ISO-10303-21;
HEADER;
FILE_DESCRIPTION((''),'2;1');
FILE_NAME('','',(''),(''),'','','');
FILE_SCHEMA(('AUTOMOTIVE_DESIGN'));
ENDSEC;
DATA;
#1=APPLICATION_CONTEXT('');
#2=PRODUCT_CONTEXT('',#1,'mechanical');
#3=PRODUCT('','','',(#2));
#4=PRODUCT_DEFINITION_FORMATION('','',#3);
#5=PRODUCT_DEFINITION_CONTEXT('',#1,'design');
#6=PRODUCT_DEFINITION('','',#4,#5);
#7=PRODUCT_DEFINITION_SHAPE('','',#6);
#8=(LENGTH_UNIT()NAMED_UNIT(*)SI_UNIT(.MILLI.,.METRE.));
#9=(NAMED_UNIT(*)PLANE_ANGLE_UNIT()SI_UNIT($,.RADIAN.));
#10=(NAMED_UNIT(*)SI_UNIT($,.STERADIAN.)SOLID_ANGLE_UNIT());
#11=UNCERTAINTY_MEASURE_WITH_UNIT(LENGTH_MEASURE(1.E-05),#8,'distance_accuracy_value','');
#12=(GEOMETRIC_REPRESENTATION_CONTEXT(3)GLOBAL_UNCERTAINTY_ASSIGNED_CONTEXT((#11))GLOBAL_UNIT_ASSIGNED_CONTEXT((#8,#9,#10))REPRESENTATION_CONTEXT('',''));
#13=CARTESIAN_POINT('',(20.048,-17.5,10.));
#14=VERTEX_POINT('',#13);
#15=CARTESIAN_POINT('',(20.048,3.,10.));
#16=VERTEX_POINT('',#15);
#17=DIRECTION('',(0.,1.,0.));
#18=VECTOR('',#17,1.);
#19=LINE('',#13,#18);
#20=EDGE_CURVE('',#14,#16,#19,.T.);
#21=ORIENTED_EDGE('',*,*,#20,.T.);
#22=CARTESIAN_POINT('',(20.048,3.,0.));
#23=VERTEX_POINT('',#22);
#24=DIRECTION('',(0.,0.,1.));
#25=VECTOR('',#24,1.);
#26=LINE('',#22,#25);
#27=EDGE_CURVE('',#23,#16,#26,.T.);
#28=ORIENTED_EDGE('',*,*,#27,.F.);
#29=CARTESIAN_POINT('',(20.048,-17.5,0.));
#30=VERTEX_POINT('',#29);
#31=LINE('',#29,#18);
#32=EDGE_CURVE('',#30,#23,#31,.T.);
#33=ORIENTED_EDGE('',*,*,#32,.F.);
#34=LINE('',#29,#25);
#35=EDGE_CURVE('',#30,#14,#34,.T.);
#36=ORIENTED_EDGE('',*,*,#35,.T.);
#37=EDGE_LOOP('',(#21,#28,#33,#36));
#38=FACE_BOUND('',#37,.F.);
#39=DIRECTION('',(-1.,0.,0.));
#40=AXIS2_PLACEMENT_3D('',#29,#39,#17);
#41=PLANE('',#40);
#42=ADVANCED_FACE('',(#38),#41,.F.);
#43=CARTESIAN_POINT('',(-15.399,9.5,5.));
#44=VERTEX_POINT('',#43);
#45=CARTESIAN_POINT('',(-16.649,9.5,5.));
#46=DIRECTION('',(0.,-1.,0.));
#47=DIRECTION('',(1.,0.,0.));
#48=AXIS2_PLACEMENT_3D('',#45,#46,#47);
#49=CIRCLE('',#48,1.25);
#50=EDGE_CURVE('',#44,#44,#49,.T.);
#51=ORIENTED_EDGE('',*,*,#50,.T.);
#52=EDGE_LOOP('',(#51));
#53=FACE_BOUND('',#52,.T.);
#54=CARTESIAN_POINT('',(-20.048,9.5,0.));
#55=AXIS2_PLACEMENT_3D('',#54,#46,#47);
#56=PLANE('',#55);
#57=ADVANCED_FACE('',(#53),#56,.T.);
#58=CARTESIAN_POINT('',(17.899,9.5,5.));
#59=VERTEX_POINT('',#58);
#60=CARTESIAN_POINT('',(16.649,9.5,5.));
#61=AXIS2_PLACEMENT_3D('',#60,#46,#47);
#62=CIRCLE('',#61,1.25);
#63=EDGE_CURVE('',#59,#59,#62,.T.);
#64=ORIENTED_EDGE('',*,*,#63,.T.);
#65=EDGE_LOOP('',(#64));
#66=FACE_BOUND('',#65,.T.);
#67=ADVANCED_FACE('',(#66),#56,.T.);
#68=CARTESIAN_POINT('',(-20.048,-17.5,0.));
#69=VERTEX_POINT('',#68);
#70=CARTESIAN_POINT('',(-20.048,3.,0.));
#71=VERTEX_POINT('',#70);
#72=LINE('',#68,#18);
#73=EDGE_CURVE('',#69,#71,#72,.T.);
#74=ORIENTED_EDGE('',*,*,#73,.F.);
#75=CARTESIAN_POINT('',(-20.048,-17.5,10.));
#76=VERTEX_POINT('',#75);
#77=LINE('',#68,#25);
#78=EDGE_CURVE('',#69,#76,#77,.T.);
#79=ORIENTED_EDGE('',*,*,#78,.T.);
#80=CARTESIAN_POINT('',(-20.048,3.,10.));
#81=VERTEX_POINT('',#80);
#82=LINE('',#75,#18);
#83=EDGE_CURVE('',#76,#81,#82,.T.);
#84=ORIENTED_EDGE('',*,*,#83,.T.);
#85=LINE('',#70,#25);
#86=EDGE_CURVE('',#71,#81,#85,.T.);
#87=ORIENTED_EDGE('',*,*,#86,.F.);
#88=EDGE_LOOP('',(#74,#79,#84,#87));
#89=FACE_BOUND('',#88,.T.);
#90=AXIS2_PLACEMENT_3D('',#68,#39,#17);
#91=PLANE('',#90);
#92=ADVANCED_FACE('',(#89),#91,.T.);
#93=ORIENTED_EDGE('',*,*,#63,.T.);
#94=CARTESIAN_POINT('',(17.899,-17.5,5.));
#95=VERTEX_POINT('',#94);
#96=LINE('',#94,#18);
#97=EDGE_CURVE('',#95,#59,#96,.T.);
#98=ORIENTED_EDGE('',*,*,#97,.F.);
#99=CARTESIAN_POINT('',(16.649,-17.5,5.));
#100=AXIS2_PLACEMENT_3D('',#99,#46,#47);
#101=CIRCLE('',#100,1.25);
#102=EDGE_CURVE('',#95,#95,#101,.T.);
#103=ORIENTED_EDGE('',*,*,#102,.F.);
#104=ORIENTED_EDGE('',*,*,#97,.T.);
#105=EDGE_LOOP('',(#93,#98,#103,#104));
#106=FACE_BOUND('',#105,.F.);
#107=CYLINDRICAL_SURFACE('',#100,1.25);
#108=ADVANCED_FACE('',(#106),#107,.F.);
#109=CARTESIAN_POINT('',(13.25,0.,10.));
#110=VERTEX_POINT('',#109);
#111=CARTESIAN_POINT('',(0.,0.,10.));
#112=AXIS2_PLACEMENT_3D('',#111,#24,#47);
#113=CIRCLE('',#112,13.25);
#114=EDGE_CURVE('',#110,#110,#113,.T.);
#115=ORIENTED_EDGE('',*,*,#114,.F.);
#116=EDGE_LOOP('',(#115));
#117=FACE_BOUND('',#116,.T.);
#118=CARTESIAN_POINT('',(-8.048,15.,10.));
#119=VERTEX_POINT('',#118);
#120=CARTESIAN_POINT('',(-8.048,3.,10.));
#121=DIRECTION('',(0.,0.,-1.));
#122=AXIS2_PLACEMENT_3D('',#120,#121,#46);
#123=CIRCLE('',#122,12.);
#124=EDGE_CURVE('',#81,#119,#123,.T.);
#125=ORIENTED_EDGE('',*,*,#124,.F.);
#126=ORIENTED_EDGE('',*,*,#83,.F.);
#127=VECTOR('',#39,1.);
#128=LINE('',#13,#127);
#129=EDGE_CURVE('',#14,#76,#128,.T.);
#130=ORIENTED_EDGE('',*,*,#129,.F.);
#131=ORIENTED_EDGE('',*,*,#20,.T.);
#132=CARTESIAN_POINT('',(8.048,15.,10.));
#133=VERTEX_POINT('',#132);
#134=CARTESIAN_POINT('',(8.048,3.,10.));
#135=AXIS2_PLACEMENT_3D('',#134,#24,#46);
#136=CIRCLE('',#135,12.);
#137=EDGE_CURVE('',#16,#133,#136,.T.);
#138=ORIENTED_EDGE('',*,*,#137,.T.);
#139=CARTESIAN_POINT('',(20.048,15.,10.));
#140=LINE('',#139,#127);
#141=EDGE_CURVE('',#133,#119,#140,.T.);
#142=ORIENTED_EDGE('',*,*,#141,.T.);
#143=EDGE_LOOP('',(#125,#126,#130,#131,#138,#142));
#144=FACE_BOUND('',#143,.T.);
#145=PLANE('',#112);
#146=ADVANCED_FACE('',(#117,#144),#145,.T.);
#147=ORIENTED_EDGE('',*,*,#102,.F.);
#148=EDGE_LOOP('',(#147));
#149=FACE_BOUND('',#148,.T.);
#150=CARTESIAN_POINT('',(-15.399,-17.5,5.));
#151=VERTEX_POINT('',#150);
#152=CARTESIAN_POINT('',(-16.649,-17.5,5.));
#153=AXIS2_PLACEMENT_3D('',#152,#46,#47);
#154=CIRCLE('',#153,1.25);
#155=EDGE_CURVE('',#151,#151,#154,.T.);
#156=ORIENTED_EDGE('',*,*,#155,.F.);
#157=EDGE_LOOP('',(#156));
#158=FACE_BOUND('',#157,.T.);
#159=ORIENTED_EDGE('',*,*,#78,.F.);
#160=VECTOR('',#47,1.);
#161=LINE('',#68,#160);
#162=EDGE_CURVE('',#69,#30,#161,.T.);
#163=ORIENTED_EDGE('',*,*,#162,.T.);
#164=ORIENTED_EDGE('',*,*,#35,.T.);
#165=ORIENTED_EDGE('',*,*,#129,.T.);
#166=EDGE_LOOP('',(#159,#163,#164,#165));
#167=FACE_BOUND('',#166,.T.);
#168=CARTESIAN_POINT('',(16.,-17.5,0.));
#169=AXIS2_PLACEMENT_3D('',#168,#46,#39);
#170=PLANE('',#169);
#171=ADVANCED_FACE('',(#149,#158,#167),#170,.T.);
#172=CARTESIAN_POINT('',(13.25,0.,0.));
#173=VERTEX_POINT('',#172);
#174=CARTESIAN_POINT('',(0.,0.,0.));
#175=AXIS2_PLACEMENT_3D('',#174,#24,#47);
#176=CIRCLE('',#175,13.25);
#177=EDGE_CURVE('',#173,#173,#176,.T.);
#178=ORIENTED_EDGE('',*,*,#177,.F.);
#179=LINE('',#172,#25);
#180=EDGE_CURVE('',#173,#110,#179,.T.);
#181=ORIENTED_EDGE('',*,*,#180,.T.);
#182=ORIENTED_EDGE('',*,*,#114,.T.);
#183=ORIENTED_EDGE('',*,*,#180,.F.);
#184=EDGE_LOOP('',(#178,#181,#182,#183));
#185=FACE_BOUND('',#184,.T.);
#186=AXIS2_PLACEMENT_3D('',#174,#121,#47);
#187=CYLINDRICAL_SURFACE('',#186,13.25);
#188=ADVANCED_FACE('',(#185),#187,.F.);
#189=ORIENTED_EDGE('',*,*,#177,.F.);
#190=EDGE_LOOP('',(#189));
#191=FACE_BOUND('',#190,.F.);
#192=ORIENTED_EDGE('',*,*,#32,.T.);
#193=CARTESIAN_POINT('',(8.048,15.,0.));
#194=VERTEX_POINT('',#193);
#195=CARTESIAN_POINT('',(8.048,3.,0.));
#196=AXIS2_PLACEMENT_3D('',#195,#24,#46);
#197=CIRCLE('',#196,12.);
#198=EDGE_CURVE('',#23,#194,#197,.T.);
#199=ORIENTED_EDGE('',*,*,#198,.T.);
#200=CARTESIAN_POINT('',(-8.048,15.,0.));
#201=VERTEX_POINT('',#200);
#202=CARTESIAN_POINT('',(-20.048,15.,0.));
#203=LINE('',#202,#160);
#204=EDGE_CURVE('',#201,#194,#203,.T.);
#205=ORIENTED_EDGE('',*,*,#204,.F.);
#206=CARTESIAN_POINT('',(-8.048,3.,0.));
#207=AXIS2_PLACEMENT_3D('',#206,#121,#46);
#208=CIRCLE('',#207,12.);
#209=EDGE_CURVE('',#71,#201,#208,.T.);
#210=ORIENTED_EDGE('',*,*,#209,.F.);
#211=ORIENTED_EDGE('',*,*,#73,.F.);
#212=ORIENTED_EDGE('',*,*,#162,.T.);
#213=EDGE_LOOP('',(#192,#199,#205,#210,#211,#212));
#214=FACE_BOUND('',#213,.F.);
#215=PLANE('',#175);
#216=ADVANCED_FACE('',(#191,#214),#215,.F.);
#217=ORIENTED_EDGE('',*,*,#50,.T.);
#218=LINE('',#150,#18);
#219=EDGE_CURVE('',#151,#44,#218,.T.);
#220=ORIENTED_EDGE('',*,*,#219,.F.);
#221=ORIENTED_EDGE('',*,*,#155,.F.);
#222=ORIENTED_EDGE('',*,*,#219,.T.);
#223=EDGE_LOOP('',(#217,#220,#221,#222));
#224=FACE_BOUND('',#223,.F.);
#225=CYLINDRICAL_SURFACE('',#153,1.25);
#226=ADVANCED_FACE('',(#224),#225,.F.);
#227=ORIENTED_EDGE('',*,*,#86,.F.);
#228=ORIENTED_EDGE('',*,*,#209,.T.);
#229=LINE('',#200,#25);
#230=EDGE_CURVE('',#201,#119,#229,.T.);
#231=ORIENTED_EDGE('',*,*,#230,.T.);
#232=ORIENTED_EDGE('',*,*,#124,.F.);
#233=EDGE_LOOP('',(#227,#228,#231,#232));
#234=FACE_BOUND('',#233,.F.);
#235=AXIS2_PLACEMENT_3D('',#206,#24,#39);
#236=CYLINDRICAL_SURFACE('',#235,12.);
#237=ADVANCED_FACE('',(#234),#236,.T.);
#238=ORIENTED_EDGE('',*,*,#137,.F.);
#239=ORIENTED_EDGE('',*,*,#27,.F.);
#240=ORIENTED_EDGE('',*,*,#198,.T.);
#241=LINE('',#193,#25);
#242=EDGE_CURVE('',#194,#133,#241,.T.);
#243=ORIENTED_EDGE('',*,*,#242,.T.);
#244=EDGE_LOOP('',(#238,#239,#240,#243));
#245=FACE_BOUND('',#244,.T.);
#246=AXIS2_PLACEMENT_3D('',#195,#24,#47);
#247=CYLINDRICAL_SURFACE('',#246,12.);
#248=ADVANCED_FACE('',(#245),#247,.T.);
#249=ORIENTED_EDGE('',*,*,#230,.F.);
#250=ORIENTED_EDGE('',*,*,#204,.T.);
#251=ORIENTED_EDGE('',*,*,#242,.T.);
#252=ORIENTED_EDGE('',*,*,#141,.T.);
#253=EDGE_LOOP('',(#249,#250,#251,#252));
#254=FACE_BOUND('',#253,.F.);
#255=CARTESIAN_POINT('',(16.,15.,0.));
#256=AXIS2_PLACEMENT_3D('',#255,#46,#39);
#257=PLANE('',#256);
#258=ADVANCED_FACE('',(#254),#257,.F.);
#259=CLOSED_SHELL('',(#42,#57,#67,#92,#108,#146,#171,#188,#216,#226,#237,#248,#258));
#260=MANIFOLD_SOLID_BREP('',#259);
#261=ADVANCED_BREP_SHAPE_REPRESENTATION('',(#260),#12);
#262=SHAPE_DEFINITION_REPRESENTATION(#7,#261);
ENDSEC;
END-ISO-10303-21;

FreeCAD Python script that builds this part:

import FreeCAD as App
import Part
import Sketcher
Q = App.Units.Quantity


def edges_at(feature, points):
    """Names of the edges that pass closest to the given points."""
    edges = feature.Shape.Edges
    near = lambda p: min(range(len(edges)), key=lambda i: edges[i].distToShape(Part.Vertex(*p))[0])
    return sorted({f"Edge{near(p) + 1}" for p in points})

doc = App.newDocument("Part")
body = doc.addObject("PartDesign::Body", "Body")

# Sketch on XY plane
sketch1 = body.newObject("Sketcher::SketchObject", "Sketch")
sketch1.AttachmentSupport = (doc.getObject("XY_Plane"), [""])
sketch1.MapMode = "FlatFace"
sketch1.addGeometry(Part.LineSegment(App.Vector(-16, -18, 0), App.Vector(16, -18, 0)), False)
sketch1.addGeometry(Part.LineSegment(App.Vector(16, -18, 0), App.Vector(16, 15, 0)), False)
sketch1.addGeometry(Part.LineSegment(App.Vector(16, 15, 0), App.Vector(-16, 15, 0)), False)
sketch1.addGeometry(Part.LineSegment(App.Vector(-16, 15, 0), App.Vector(-16, -18, 0)), False)
sketch1.addGeometry(Part.Circle(App.Vector(0, 0, 0), App.Vector(0, 0, 1), 13), False)
sketch1.addConstraint(Sketcher.Constraint("Coincident", 0, 2, 1, 1))
sketch1.addConstraint(Sketcher.Constraint("Coincident", 1, 2, 2, 1))
sketch1.addConstraint(Sketcher.Constraint("Coincident", 2, 2, 3, 1))
sketch1.addConstraint(Sketcher.Constraint("Coincident", 3, 2, 0, 1))
sketch1.addConstraint(Sketcher.Constraint("Horizontal", 0))
sketch1.addConstraint(Sketcher.Constraint("Vertical", 1))
sketch1.addConstraint(Sketcher.Constraint("Horizontal", 2))
sketch1.addConstraint(Sketcher.Constraint("Vertical", 3))
sketch1.addConstraint(Sketcher.Constraint("Coincident", 4, 3, -1, 1))
sketch1.addConstraint(Sketcher.Constraint("Diameter", 4, Q("26.5 mm")))
sketch1.addConstraint(Sketcher.Constraint("DistanceY", 1, 1, 1, 2, Q("32.5 mm")))
sketch1.addConstraint(Sketcher.Constraint("DistanceY", 0, 2, -1, 1, Q("17.5 mm")))
sketch1.addConstraint(Sketcher.Constraint("DistanceX", 0, 1, 0, 2, Q("32 mm")))
sketch1.addConstraint(Sketcher.Constraint("DistanceX", -1, 1, 0, 2, Q("16 mm")))
pad1 = body.newObject("PartDesign::Pad", "Pad")
pad1.Profile = sketch1
pad1.Length = 10

# Sketch on XY plane
sketch2 = body.newObject("Sketcher::SketchObject", "Sketch001")
sketch2.AttachmentSupport = (doc.getObject("XY_Plane"), [""])
sketch2.MapMode = "FlatFace"
sketch2.addGeometry(Part.LineSegment(App.Vector(-20, 15, 0), App.Vector(-16, 15, 0)), False)
sketch2.addGeometry(Part.LineSegment(App.Vector(-16, 15, 0), App.Vector(-16, -17.5, 0)), False)
sketch2.addGeometry(Part.LineSegment(App.Vector(-16, -17.5, 0), App.Vector(-20, -17.5, 0)), False)
sketch2.addGeometry(Part.LineSegment(App.Vector(-20, -17.5, 0), App.Vector(-20, 15, 0)), False)
sketch2.addGeometry(Part.LineSegment(App.Vector(16, -17.5, 0), App.Vector(16, 15, 0)), False)
sketch2.addGeometry(Part.LineSegment(App.Vector(16, 15, 0), App.Vector(20, 15, 0)), False)
sketch2.addGeometry(Part.LineSegment(App.Vector(20, 15, 0), App.Vector(20, -17.5, 0)), False)
sketch2.addGeometry(Part.LineSegment(App.Vector(20, -17.5, 0), App.Vector(16, -17.5, 0)), False)
sketch2.addConstraint(Sketcher.Constraint("Coincident", 0, 2, 1, 1))
sketch2.addConstraint(Sketcher.Constraint("Coincident", 1, 2, 2, 1))
sketch2.addConstraint(Sketcher.Constraint("Coincident", 2, 2, 3, 1))
sketch2.addConstraint(Sketcher.Constraint("Coincident", 3, 2, 0, 1))
sketch2.addConstraint(Sketcher.Constraint("Coincident", 4, 2, 5, 1))
sketch2.addConstraint(Sketcher.Constraint("Coincident", 5, 2, 6, 1))
sketch2.addConstraint(Sketcher.Constraint("Coincident", 6, 2, 7, 1))
sketch2.addConstraint(Sketcher.Constraint("Coincident", 7, 2, 4, 1))
sketch2.addConstraint(Sketcher.Constraint("Horizontal", 0))
sketch2.addConstraint(Sketcher.Constraint("Vertical", 1))
sketch2.addConstraint(Sketcher.Constraint("Horizontal", 2))
sketch2.addConstraint(Sketcher.Constraint("Vertical", 3))
sketch2.addConstraint(Sketcher.Constraint("Vertical", 4))
sketch2.addConstraint(Sketcher.Constraint("Horizontal", 5))
sketch2.addConstraint(Sketcher.Constraint("Vertical", 6))
sketch2.addConstraint(Sketcher.Constraint("Horizontal", 7))
sketch2.addConstraint(Sketcher.Constraint("Symmetric", 0, 2, 4, 2, -2))
sketch2.addConstraint(Sketcher.Constraint("Symmetric", 2, 2, 6, 2, -2))
sketch2.addConstraint(Sketcher.Constraint("DistanceY", 1, 2, 1, 1, Q("32.5 mm")))
sketch2.addConstraint(Sketcher.Constraint("DistanceX", 0, 2, -1, 1, Q("16 mm")))
sketch2.addConstraint(Sketcher.Constraint("DistanceY", -1, 1, 0, 2, Q("15 mm")))
sketch2.addConstraint(Sketcher.Constraint("DistanceX", 0, 1, 0, 2, Q("4.048 mm")))
pad2 = body.newObject("PartDesign::Pad", "Pad001")
pad2.Profile = sketch2
pad2.Length = 10

# Sketch on XZ plane
sketch3 = body.newObject("Sketcher::SketchObject", "Sketch002")
sketch3.AttachmentSupport = (doc.getObject("XZ_Plane"), [""])
sketch3.MapMode = "FlatFace"
sketch3.AttachmentOffset = App.Placement(App.Vector(0, 0, 17.5), App.Rotation())
sketch3.addGeometry(Part.Circle(App.Vector(-16.6, 5, 0), App.Vector(0, 0, 1), 1.2), False)
sketch3.addGeometry(Part.Circle(App.Vector(16.6, 5, 0), App.Vector(0, 0, 1), 1.2), False)
sketch3.addConstraint(Sketcher.Constraint("Equal", 0, 1))
sketch3.addConstraint(Sketcher.Constraint("Symmetric", 0, 3, 1, 3, -2))
sketch3.addConstraint(Sketcher.Constraint("Diameter", 0, Q("2.5 mm")))
sketch3.addConstraint(Sketcher.Constraint("DistanceY", -1, 1, 0, 3, Q("5 mm")))
sketch3.addConstraint(Sketcher.Constraint("DistanceX", 0, 3, -1, 1, Q("16.649 mm")))
pocket1 = body.newObject("PartDesign::Pocket", "Pocket")
pocket1.Profile = sketch3
pocket1.Length = 27
doc.recompute()

fillet = body.newObject("PartDesign::Fillet", "Fillet")
fillet.Base = (pocket1, edges_at(pocket1, [(20.048, 15, 5), (-20.048, 15, 5)]))
fillet.Radius = 12

doc.recompute()
